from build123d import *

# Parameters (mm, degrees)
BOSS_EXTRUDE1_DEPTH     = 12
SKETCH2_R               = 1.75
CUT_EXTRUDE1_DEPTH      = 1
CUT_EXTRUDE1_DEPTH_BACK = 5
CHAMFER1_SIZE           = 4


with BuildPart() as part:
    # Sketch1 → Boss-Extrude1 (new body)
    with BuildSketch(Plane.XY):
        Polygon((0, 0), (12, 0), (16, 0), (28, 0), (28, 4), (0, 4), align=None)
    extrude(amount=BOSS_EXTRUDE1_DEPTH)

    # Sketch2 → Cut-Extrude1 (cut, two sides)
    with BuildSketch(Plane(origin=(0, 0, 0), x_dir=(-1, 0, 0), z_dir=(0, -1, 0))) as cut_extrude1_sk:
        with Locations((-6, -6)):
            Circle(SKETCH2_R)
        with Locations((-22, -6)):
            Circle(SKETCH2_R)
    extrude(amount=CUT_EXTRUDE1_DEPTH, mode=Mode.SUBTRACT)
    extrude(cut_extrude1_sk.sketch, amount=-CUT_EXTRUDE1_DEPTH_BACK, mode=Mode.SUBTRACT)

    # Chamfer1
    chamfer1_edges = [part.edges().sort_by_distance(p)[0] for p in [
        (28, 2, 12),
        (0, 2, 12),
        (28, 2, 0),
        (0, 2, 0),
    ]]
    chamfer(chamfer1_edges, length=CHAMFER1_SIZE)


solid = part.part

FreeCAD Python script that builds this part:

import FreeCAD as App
import Part
import Sketcher

V = App.Vector
Q = App.Units.Quantity


def edges_at(feature, points):
    """Names of the edges that pass closest to the given points."""
    edges = feature.Shape.Edges
    near = lambda p: min(range(len(edges)), key=lambda i: edges[i].distToShape(Part.Vertex(*p))[0])
    return sorted({f"Edge{near(p) + 1}" for p in points})

doc = App.newDocument("Part")
params = doc.addObject("Spreadsheet::Sheet", "Params")
for row, (alias, value) in enumerate([
    ("sketch1_width", "28 mm"),
    ("sketch1_height", "4 mm"),
    ("pad1_length", "12 mm"),
    ("sketch2_diameter", "3.5 mm"),
    ("chamfer_size", "4 mm"),
], start=1):
    params.set(f"A{row}", alias)
    params.set(f"B{row}", "=" + value)
    params.setAlias(f"B{row}", alias)

body = doc.addObject("PartDesign::Body", "Body")

# Sketch on XY plane
sketch1 = body.newObject("Sketcher::SketchObject", "Sketch")
sketch1.AttachmentSupport = (doc.getObject("XY_Plane"), [""])
sketch1.MapMode = "FlatFace"
sketch1.addGeometry([
    Part.LineSegment(V(0, 0, 0), V(28, 0, 0)),
    Part.LineSegment(V(28, 0, 0), V(28, 4, 0)),
    Part.LineSegment(V(28, 4, 0), V(0, 4, 0)),
    Part.LineSegment(V(0, 4, 0), V(0, 0, 0)),
], False)
sketch1.addConstraint([
    Sketcher.Constraint("Coincident", 0, 2, 1, 1),
    Sketcher.Constraint("Coincident", 1, 2, 2, 1),
    Sketcher.Constraint("Coincident", 2, 2, 3, 1),
    Sketcher.Constraint("Coincident", 3, 2, 0, 1),
    Sketcher.Constraint("Horizontal", 0),
    Sketcher.Constraint("Vertical", 1),
    Sketcher.Constraint("Horizontal", 2),
    Sketcher.Constraint("Vertical", 3),
    Sketcher.Constraint("Coincident", 3, 2, -1, 1),
    Sketcher.Constraint("DistanceX", 0, 1, 0, 2, Q("28 mm")),
    Sketcher.Constraint("DistanceY", 1, 1, 1, 2, Q("4 mm")),
])
sketch1.setExpression("Constraints[9]", "Params.sketch1_width")
sketch1.setExpression("Constraints[10]", "Params.sketch1_height")
pad1 = body.newObject("PartDesign::Pad", "Pad")
pad1.Profile = sketch1
pad1.setExpression("Length", "Params.pad1_length")

# Sketch on XZ plane
sketch2 = body.newObject("Sketcher::SketchObject", "Sketch001")
sketch2.AttachmentSupport = (doc.getObject("XZ_Plane"), [""])
sketch2.MapMode = "FlatFace"
sketch2.addGeometry([
    Part.Circle(V(6, 6, 0), V(0, 0, 1), 1.75),
    Part.Circle(V(22, 6, 0), V(0, 0, 1), 1.75),
], False)
sketch2.addConstraint([
    Sketcher.Constraint("Equal", 0, 1),
    Sketcher.Constraint("Horizontal", 0, 3, 1, 3),
    Sketcher.Constraint("Diameter", 0, Q("3.5 mm")),
    Sketcher.Constraint("DistanceX", -1, 1, 0, 3, Q("6 mm")),
    Sketcher.Constraint("DistanceY", -1, 1, 0, 3, Q("6 mm")),
    Sketcher.Constraint("DistanceX", -1, 1, 1, 3, Q("22 mm")),
])
sketch2.setExpression("Constraints[2]", "Params.sketch2_diameter")
pocket1 = body.newObject("PartDesign::Pocket", "Pocket")
pocket1.Profile = sketch2
pocket1.Type = "ThroughAll"
pocket1.Midplane = True
doc.recompute()

chamfer = body.newObject("PartDesign::Chamfer", "Chamfer")
chamfer.Base = (pocket1, edges_at(pocket1, [
    (28, 2, 12),
    (0, 2, 12),
    (28, 2, 0),
    (0, 2, 0),
]))
chamfer.setExpression("Size", "Params.chamfer_size")

doc.recompute()
